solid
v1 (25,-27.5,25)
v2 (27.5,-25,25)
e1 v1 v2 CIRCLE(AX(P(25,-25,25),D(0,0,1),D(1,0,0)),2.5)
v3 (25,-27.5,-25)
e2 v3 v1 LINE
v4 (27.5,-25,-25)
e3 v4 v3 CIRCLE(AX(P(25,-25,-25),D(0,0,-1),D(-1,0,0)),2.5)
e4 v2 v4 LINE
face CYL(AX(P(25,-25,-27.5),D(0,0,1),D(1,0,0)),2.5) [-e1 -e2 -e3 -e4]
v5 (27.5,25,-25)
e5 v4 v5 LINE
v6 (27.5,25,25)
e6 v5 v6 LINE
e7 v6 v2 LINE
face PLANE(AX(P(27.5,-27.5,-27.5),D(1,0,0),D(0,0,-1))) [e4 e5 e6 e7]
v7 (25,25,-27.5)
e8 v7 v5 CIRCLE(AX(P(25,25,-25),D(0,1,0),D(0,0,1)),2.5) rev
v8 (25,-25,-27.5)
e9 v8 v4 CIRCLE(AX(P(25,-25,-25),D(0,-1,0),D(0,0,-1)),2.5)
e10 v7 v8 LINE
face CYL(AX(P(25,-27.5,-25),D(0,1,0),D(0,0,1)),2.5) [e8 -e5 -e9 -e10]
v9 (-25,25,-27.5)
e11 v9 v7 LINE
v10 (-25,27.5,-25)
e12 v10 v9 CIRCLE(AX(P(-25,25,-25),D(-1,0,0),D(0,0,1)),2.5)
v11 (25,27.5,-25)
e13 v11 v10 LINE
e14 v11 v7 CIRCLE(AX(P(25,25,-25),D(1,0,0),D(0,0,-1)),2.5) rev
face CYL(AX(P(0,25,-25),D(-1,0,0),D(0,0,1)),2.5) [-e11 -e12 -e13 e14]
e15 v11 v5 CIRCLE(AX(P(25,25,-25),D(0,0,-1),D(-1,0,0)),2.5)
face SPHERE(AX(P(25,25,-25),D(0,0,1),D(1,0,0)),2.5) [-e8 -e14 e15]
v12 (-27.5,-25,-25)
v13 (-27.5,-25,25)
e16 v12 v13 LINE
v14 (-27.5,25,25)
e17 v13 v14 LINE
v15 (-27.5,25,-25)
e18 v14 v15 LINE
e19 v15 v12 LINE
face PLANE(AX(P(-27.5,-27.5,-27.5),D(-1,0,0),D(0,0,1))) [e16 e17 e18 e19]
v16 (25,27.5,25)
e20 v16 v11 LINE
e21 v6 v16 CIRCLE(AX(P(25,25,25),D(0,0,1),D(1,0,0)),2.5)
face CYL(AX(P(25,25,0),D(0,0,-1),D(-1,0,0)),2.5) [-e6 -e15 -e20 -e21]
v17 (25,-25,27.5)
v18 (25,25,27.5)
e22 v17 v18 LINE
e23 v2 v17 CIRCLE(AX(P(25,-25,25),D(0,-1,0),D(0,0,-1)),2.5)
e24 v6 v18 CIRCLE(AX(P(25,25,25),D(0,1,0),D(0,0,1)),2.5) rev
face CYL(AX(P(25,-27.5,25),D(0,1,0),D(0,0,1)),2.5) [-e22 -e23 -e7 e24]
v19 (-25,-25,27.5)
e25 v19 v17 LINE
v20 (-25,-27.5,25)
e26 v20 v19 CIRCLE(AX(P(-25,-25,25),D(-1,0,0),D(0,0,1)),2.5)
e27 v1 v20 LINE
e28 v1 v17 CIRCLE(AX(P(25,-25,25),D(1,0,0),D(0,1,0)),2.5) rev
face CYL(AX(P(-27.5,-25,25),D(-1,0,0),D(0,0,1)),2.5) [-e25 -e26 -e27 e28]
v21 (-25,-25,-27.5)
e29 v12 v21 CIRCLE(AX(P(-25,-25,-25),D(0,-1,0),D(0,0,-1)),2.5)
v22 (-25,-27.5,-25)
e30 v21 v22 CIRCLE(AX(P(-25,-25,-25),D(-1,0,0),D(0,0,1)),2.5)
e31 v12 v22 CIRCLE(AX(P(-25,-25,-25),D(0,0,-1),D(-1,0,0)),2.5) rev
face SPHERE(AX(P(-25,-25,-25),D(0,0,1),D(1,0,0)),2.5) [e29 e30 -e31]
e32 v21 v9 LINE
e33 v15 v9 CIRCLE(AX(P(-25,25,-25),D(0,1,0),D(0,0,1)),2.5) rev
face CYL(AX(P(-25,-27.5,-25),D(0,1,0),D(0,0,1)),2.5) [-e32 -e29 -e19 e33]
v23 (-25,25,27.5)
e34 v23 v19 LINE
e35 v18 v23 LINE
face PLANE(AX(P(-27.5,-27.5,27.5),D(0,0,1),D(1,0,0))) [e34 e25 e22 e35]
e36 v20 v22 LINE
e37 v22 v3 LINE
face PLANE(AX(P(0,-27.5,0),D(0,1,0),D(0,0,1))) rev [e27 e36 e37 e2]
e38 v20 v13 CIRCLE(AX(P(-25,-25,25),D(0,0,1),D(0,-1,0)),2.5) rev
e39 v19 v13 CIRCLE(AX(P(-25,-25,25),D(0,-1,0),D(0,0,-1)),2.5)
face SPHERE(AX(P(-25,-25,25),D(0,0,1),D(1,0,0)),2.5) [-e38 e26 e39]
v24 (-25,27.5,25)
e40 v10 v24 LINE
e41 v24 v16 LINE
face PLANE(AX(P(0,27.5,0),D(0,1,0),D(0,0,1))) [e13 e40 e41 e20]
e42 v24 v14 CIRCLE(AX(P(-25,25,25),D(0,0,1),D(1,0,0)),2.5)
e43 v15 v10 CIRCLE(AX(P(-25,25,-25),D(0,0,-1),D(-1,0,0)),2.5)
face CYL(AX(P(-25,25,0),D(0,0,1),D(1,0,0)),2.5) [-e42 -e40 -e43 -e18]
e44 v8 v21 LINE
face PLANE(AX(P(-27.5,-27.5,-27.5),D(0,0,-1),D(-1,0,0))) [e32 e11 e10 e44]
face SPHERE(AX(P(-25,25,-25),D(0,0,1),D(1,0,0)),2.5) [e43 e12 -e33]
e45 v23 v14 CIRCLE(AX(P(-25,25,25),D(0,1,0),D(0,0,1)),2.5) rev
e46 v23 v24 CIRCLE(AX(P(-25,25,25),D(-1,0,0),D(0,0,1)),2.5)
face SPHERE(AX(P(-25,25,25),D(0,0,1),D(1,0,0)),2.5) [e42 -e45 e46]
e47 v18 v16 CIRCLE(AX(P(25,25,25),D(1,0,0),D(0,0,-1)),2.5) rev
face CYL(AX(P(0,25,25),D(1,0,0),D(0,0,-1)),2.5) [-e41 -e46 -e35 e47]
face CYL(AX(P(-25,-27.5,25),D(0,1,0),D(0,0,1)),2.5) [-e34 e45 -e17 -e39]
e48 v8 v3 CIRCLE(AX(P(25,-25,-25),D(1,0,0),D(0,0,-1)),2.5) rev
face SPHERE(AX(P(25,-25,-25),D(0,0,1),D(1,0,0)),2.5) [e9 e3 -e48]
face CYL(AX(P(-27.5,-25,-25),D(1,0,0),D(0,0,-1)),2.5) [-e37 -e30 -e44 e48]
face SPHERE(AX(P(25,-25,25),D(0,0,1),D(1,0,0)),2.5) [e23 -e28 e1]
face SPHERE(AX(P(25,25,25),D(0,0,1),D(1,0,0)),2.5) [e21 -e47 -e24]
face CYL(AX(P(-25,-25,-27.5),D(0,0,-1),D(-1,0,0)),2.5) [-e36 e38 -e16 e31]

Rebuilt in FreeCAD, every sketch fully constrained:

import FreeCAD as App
import Part
import Sketcher
Q = App.Units.Quantity


def add_polygon(sketch, points):
    """Adds a closed chain of lines whose ends are joined by coincident constraints."""
    first, n = sketch.GeometryCount, len(points)
    for a, b in zip(points, points[1:] + points[:1]):
        sketch.addGeometry(Part.LineSegment(App.Vector(*a, 0), App.Vector(*b, 0)), False)
    for i in range(n):
        sketch.addConstraint(Sketcher.Constraint("Coincident", first + i, 2, first + (i + 1) % n, 1))

doc = App.newDocument("Part")
body = doc.addObject("PartDesign::Body", "Body")

sketch1 = body.newObject("Sketcher::SketchObject", "Sketch")
sketch1.AttachmentSupport = (doc.getObject("XZ_Plane"), [""])
sketch1.MapMode = "FlatFace"
add_polygon(sketch1, [(-27.5, -27.5), (-27.5, 27.5), (27.5, 27.5), (27.5, -27.5)])
sketch1.addConstraint([
    Sketcher.Constraint("Vertical", 0),
    Sketcher.Constraint("Horizontal", 1),
    Sketcher.Constraint("Vertical", 2),
    Sketcher.Constraint("Horizontal", 3),
    Sketcher.Constraint("Symmetric", 0, 2, 2, 2, -1, 1),
    Sketcher.Constraint("Equal", 3, 0),
    Sketcher.Constraint("DistanceX", 1, 1, 1, 2, Q("55 mm")),
])
pad1 = body.newObject("PartDesign::Pad", "Pad")
pad1.Profile = sketch1
pad1.Type = "TwoLengths"
pad1.Length = 27.5
pad1.Length2 = 27.5
pad1.Reversed = True
doc.recompute()

fillet = body.newObject("PartDesign::Fillet", "Fillet")
fillet.Base = (pad1, ["Edge1"])
fillet.UseAllEdges = True
fillet.Radius = 2.5

doc.recompute()
